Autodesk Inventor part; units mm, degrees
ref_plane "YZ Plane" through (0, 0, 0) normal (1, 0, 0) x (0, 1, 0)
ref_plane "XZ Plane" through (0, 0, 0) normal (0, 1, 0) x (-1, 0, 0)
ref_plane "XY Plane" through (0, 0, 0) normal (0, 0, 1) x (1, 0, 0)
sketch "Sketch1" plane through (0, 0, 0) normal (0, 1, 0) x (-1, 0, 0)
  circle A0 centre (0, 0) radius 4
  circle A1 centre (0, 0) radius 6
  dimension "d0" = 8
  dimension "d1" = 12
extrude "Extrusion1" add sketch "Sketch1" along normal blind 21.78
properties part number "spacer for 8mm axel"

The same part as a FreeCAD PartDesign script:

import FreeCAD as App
import Part
import Sketcher

V = App.Vector

doc = App.newDocument("Part")
body = doc.addObject("PartDesign::Body", "Body")

# Sketch on XZ plane
sketch1 = body.newObject("Sketcher::SketchObject", "Sketch")
sketch1.AttachmentSupport = (doc.getObject("XZ_Plane"), [""])
sketch1.MapMode = "FlatFace"
sketch1.addGeometry([
    Part.Circle(V(0, 0, 0), V(0, 0, 1), 6),
    Part.Circle(V(0, 0, 0), V(0, 0, 1), 4),
], False)
sketch1.addConstraint([
    Sketcher.Constraint("Coincident", 0, 3, -1, 1),
    Sketcher.Constraint("Coincident", 1, 3, -1, 1),
    Sketcher.Constraint("Diameter", 0, 12.0),
    Sketcher.Constraint("Diameter", 1, 8.0),
])
pad1 = body.newObject("PartDesign::Pad", "Pad")
pad1.Profile = sketch1
pad1.Length = 21.78
pad1.Reversed = True

doc.recompute()
